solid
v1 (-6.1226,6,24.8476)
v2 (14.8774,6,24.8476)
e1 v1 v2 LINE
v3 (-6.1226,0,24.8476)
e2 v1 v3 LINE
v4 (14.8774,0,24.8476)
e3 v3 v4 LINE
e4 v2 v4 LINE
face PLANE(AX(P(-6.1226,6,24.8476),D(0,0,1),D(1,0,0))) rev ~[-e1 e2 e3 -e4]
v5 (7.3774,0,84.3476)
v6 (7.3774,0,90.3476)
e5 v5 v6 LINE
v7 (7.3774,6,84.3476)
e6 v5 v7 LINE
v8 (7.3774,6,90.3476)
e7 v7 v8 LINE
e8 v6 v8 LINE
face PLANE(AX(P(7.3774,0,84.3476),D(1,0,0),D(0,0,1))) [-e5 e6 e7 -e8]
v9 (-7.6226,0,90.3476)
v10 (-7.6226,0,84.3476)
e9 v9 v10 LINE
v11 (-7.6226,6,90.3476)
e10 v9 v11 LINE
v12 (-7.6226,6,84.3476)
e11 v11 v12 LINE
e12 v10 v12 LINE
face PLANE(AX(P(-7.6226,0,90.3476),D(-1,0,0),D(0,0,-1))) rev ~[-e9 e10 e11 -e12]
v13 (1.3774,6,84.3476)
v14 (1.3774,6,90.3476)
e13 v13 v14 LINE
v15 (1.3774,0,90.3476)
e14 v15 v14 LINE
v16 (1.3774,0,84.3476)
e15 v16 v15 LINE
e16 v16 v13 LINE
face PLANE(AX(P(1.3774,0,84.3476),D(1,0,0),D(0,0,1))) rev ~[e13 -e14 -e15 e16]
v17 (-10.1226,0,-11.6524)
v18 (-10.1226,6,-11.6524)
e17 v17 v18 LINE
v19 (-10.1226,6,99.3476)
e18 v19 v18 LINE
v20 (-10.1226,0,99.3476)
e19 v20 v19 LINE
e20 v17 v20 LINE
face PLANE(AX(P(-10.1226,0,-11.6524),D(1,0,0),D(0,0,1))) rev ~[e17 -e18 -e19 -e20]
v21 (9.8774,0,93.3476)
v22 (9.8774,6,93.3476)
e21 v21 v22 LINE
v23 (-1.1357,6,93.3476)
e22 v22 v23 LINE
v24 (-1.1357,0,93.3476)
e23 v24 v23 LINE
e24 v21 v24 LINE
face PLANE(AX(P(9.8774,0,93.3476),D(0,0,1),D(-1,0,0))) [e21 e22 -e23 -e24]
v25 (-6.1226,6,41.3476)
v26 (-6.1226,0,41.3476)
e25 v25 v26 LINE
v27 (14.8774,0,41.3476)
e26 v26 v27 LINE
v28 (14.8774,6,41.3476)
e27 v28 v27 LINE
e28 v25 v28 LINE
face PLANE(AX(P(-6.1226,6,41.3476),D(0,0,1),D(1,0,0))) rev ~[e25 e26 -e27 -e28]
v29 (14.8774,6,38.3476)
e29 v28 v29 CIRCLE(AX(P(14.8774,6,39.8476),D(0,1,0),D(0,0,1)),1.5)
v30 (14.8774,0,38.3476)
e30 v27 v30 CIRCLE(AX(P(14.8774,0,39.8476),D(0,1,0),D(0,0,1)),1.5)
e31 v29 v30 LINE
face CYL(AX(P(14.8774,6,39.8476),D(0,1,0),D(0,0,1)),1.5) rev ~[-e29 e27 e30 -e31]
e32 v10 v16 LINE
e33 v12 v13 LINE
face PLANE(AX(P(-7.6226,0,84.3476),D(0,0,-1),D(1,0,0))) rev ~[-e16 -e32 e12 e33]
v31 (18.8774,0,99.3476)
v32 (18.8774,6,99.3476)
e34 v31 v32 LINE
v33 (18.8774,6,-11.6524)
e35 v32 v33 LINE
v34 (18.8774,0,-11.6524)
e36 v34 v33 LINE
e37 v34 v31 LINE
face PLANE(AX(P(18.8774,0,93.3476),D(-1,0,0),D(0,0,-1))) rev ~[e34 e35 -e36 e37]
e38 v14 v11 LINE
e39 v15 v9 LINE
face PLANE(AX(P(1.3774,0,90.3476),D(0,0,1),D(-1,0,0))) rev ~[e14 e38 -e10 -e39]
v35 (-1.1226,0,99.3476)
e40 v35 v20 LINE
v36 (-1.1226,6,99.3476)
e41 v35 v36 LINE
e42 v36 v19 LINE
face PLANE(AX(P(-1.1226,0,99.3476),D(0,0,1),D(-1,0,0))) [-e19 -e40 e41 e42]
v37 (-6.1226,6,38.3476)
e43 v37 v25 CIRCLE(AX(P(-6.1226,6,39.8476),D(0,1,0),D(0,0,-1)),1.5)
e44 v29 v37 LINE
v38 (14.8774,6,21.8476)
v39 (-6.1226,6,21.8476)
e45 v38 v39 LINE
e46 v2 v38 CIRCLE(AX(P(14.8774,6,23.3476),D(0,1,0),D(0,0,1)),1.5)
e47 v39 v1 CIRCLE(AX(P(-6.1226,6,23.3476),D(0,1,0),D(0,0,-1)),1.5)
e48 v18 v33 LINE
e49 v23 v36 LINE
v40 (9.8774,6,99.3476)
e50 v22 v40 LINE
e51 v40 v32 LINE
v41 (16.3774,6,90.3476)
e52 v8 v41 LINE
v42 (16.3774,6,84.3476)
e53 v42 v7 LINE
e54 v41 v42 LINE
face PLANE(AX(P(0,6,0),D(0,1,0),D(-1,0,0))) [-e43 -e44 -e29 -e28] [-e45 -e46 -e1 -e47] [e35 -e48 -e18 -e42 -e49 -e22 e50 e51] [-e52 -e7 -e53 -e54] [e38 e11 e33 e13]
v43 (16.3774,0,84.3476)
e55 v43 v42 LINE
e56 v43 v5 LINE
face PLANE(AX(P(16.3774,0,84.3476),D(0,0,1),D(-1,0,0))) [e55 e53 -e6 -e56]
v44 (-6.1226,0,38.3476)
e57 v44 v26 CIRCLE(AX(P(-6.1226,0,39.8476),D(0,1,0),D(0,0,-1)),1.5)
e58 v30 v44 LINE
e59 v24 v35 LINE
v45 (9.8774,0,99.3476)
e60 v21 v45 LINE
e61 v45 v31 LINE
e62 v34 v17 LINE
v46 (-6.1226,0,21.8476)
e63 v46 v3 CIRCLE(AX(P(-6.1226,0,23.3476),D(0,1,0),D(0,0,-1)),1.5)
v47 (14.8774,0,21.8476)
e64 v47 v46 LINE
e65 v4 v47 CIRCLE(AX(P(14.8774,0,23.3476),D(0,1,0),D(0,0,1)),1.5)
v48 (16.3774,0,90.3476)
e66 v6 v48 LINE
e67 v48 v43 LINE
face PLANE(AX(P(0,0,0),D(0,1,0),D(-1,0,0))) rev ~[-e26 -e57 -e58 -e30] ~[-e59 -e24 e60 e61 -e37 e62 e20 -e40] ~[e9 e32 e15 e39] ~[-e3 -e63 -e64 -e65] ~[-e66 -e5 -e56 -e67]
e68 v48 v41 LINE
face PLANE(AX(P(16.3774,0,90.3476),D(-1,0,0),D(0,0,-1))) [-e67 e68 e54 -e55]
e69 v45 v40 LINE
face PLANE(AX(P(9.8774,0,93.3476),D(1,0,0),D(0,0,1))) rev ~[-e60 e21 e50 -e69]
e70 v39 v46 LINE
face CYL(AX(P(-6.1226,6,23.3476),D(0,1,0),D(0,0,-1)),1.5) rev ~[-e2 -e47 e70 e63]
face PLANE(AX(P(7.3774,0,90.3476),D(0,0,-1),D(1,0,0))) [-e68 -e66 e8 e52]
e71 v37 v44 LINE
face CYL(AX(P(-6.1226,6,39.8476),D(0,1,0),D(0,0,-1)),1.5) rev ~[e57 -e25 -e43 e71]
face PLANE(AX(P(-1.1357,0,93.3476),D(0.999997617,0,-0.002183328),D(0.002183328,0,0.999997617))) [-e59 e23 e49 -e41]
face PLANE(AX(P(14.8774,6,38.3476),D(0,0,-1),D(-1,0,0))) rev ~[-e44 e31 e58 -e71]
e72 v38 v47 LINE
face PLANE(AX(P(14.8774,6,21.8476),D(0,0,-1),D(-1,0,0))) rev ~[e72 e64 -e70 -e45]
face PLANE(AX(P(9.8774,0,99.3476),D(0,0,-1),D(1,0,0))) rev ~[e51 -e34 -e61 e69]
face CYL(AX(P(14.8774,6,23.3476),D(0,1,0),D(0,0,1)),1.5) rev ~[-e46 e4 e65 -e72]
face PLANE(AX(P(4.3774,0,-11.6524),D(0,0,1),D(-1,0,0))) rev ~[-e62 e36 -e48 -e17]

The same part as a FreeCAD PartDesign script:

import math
import FreeCAD as App
import Part
import Sketcher

V = App.Vector


def add_polygon(sketch, points):
    """Adds a closed chain of lines whose ends are joined by coincident constraints."""
    first, n = sketch.GeometryCount, len(points)
    for a, b in zip(points, points[1:] + points[:1]):
        sketch.addGeometry(Part.LineSegment(App.Vector(*a, 0), App.Vector(*b, 0)), False)
    for i in range(n):
        sketch.addConstraint(Sketcher.Constraint("Coincident", first + i, 2, first + (i + 1) % n, 1))

doc = App.newDocument("Part")
body = doc.addObject("PartDesign::Body", "Body")

# Sketch on XZ plane
sketch1 = body.newObject("Sketcher::SketchObject", "Sketch")
sketch1.AttachmentSupport = (doc.getObject("XZ_Plane"), [""])
sketch1.MapMode = "FlatFace"
add_polygon(sketch1, [(-10, -12), (-10, 99), (-1, 99), (-1, 93), (10, 93), (10, 99), (19, 99), (19, -12)])  # lines 0-7
add_polygon(sketch1, [(16, 90), (7, 90), (7, 84), (16, 84)])  # lines 8-11
add_polygon(sketch1, [(1, 84), (1, 90), (-8, 90), (-8, 84)])  # lines 12-15
sketch1.addConstraint(Sketcher.Constraint("Vertical", 0))
sketch1.addConstraint(Sketcher.Constraint("Horizontal", 1))
sketch1.addConstraint(Sketcher.Constraint("Horizontal", 3))
sketch1.addConstraint(Sketcher.Constraint("Vertical", 4))
sketch1.addConstraint(Sketcher.Constraint("Horizontal", 5))
sketch1.addConstraint(Sketcher.Constraint("Vertical", 6))
sketch1.addConstraint(Sketcher.Constraint("Horizontal", 7))
sketch1.addConstraint(Sketcher.Constraint("Horizontal", 8))
sketch1.addConstraint(Sketcher.Constraint("Vertical", 9))
sketch1.addConstraint(Sketcher.Constraint("Horizontal", 10))
sketch1.addConstraint(Sketcher.Constraint("Vertical", 11))
sketch1.addConstraint(Sketcher.Constraint("Vertical", 12))
sketch1.addConstraint(Sketcher.Constraint("Horizontal", 13))
sketch1.addConstraint(Sketcher.Constraint("Vertical", 14))
sketch1.addConstraint(Sketcher.Constraint("Horizontal", 15))
sketch1.addConstraint(Sketcher.Constraint("Horizontal", 1, 2, 4, 2))
sketch1.addConstraint(Sketcher.Constraint("Horizontal", 11, 2, 12, 2))
sketch1.addConstraint(Sketcher.Constraint("Horizontal", 10, 2, 14, 2))
sketch1.addConstraint(Sketcher.Constraint("Equal", 1, 5))
sketch1.addConstraint(Sketcher.Constraint("Equal", 5, 8))
sketch1.addConstraint(Sketcher.Constraint("Equal", 10, 13))
sketch1.addConstraint(Sketcher.Constraint("Equal", 4, 9))
sketch1.addConstraint(Sketcher.Constraint("DistanceX", 1, 1, 1, 2, 9.0))
sketch1.addConstraint(Sketcher.Constraint("DistanceX", 7, 2, 7, 1, 29.0))
sketch1.addConstraint(Sketcher.Constraint("DistanceY", 4, 1, 4, 2, 6.0))
sketch1.addConstraint(Sketcher.Constraint("DistanceY", 6, 2, 3, 2, 105.0))
sketch1.addConstraint(Sketcher.Constraint("DistanceY", 8, 2, 3, 2, 3.0))
sketch1.addConstraint(Sketcher.Constraint("DistanceX", 12, 2, 8, 2, 6.0))
sketch1.addConstraint(Sketcher.Constraint("DistanceX", 8, 2, 3, 2, 2.5))
sketch1.addConstraint(Sketcher.Constraint("DistanceX", 3, 1, 3, 2, 11.013))
sketch1.addConstraint(Sketcher.Constraint("DistanceX", 0, 2, -1, 1, 10.1226))
sketch1.addConstraint(Sketcher.Constraint("DistanceY", -1, 1, 0, 2, 99.3476))
pad1 = body.newObject("PartDesign::Pad", "Pad")
pad1.Profile = sketch1
pad1.Length = 6
pad1.Reversed = True

# Sketch on XZ plane
sketch2 = body.newObject("Sketcher::SketchObject", "Sketch001")
sketch2.AttachmentSupport = (doc.getObject("XZ_Plane"), [""])
sketch2.MapMode = "FlatFace"
sketch2.AttachmentOffset = App.Placement(V(0, 0, -6), App.Rotation())
sketch2.addGeometry(Part.ArcOfCircle(Part.Circle(V(14.9, 23.3, 0), V(0, 0, 1), 1.5), math.radians(-90), math.radians(90)), False)
sketch2.addGeometry(Part.LineSegment(V(14.9, 21.8, 0), V(-6.1, 21.8, 0)), False)
sketch2.addGeometry(Part.ArcOfCircle(Part.Circle(V(-6.1, 23.3, 0), V(0, 0, 1), 1.5), math.radians(90), math.radians(270)), False)
sketch2.addGeometry(Part.LineSegment(V(-6.1, 24.8, 0), V(14.9, 24.8, 0)), False)
sketch2.addGeometry(Part.ArcOfCircle(Part.Circle(V(14.9, 39.8, 0), V(0, 0, 1), 1.5), math.radians(-90), math.radians(90)), False)
sketch2.addGeometry(Part.LineSegment(V(14.9, 38.3, 0), V(-6.1, 38.3, 0)), False)
sketch2.addGeometry(Part.ArcOfCircle(Part.Circle(V(-6.1, 39.8, 0), V(0, 0, 1), 1.5), math.radians(90), math.radians(270)), False)
sketch2.addGeometry(Part.LineSegment(V(-6.1, 41.3, 0), V(14.9, 41.3, 0)), False)
sketch2.addConstraint(Sketcher.Constraint("Tangent", 0, 1, 1, 1))
sketch2.addConstraint(Sketcher.Constraint("Tangent", 1, 2, 2, 2))
sketch2.addConstraint(Sketcher.Constraint("Tangent", 2, 1, 3, 1))
sketch2.addConstraint(Sketcher.Constraint("Tangent", 3, 2, 0, 2))
sketch2.addConstraint(Sketcher.Constraint("Tangent", 4, 1, 5, 1))
sketch2.addConstraint(Sketcher.Constraint("Tangent", 5, 2, 6, 2))
sketch2.addConstraint(Sketcher.Constraint("Tangent", 6, 1, 7, 1))
sketch2.addConstraint(Sketcher.Constraint("Tangent", 7, 2, 4, 2))
sketch2.addConstraint(Sketcher.Constraint("Horizontal", 1))
sketch2.addConstraint(Sketcher.Constraint("Horizontal", 3))
sketch2.addConstraint(Sketcher.Constraint("Horizontal", 5))
sketch2.addConstraint(Sketcher.Constraint("Horizontal", 7))
sketch2.addConstraint(Sketcher.Constraint("Equal", 2, 4))
sketch2.addConstraint(Sketcher.Constraint("Vertical", 0, 3, 4, 3))
sketch2.addConstraint(Sketcher.Constraint("Vertical", 2, 3, 6, 3))
sketch2.addConstraint(Sketcher.Constraint("Radius", 0, 1.5))
sketch2.addConstraint(Sketcher.Constraint("DistanceY", 0, 3, 4, 3, 16.5))
sketch2.addConstraint(Sketcher.Constraint("DistanceX", 1, 2, 1, 1, 21.0))
sketch2.addConstraint(Sketcher.Constraint("DistanceX", -1, 1, 0, 3, 14.8774))
sketch2.addConstraint(Sketcher.Constraint("DistanceY", -1, 1, 0, 3, 23.3476))
pocket1 = body.newObject("PartDesign::Pocket", "Pocket")
pocket1.Profile = sketch2
pocket1.Type = "ThroughAll"
pocket1.Reversed = True

doc.recompute()
